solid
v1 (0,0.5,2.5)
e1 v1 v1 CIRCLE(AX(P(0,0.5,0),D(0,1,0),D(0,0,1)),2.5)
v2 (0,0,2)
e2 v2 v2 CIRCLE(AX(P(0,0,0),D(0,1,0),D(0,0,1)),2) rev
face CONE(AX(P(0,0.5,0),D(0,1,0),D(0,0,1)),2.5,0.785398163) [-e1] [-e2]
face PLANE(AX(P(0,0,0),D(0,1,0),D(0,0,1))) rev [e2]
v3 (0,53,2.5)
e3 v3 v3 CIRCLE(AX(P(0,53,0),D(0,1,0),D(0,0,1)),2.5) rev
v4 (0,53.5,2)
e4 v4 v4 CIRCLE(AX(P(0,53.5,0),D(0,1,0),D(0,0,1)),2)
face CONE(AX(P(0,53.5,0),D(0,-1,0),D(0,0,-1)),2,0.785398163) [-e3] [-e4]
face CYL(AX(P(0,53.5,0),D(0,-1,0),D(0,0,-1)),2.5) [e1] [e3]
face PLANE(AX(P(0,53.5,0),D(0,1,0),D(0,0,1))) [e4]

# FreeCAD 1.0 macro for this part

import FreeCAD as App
import Part
import Sketcher
from FreeCAD import Vector
Q = App.Units.Quantity


def edges_at(feature, points):
    """Names of the edges that pass closest to the given points."""
    edges = feature.Shape.Edges
    near = lambda p: min(range(len(edges)), key=lambda i: edges[i].distToShape(Part.Vertex(*p))[0])
    return sorted({f"Edge{near(p) + 1}" for p in points})

doc = App.newDocument("Part")
params = doc.addObject("Spreadsheet::Sheet", "Params")
for row, (alias, value) in enumerate([
    ("sketch1_diameter", "5 mm"),
    ("pad1_length", "53.5 mm"),
    ("chamfer_size", "0.5 mm"),
], start=1):
    params.set(f"A{row}", alias)
    params.set(f"B{row}", "=" + value)
    params.setAlias(f"B{row}", alias)

body = doc.addObject("PartDesign::Body", "Body")

sketch1 = doc.addObject("Sketcher::SketchObject", "Sketch")
body.addObject(sketch1)
sketch1.AttachmentSupport = (doc.XZ_Plane, [""])
sketch1.MapMode = "FlatFace"
sketch1.addGeometry(Part.Circle(Vector(0, 0, 0), Vector(0, 0, 1), 2.5), False)
sketch1.addConstraint(Sketcher.Constraint("Coincident", 0, 3, -1, 1))
sketch1.addConstraint(Sketcher.Constraint("Diameter", 0, Q("5 mm")))
sketch1.setExpression("Constraints[1]", "Params.sketch1_diameter")
pad1 = doc.addObject("PartDesign::Pad", "Pad")
body.addObject(pad1)
pad1.Profile = sketch1
pad1.setExpression("Length", "Params.pad1_length")
pad1.Reversed = True
doc.recompute()

chamfer = doc.addObject("PartDesign::Chamfer", "Chamfer")
body.addObject(chamfer)
chamfer.Base = (pad1, edges_at(pad1, [(0, 0, -2.5), (0, 53.5, -2.5)]))
chamfer.setExpression("Size", "Params.chamfer_size")

doc.recompute()
